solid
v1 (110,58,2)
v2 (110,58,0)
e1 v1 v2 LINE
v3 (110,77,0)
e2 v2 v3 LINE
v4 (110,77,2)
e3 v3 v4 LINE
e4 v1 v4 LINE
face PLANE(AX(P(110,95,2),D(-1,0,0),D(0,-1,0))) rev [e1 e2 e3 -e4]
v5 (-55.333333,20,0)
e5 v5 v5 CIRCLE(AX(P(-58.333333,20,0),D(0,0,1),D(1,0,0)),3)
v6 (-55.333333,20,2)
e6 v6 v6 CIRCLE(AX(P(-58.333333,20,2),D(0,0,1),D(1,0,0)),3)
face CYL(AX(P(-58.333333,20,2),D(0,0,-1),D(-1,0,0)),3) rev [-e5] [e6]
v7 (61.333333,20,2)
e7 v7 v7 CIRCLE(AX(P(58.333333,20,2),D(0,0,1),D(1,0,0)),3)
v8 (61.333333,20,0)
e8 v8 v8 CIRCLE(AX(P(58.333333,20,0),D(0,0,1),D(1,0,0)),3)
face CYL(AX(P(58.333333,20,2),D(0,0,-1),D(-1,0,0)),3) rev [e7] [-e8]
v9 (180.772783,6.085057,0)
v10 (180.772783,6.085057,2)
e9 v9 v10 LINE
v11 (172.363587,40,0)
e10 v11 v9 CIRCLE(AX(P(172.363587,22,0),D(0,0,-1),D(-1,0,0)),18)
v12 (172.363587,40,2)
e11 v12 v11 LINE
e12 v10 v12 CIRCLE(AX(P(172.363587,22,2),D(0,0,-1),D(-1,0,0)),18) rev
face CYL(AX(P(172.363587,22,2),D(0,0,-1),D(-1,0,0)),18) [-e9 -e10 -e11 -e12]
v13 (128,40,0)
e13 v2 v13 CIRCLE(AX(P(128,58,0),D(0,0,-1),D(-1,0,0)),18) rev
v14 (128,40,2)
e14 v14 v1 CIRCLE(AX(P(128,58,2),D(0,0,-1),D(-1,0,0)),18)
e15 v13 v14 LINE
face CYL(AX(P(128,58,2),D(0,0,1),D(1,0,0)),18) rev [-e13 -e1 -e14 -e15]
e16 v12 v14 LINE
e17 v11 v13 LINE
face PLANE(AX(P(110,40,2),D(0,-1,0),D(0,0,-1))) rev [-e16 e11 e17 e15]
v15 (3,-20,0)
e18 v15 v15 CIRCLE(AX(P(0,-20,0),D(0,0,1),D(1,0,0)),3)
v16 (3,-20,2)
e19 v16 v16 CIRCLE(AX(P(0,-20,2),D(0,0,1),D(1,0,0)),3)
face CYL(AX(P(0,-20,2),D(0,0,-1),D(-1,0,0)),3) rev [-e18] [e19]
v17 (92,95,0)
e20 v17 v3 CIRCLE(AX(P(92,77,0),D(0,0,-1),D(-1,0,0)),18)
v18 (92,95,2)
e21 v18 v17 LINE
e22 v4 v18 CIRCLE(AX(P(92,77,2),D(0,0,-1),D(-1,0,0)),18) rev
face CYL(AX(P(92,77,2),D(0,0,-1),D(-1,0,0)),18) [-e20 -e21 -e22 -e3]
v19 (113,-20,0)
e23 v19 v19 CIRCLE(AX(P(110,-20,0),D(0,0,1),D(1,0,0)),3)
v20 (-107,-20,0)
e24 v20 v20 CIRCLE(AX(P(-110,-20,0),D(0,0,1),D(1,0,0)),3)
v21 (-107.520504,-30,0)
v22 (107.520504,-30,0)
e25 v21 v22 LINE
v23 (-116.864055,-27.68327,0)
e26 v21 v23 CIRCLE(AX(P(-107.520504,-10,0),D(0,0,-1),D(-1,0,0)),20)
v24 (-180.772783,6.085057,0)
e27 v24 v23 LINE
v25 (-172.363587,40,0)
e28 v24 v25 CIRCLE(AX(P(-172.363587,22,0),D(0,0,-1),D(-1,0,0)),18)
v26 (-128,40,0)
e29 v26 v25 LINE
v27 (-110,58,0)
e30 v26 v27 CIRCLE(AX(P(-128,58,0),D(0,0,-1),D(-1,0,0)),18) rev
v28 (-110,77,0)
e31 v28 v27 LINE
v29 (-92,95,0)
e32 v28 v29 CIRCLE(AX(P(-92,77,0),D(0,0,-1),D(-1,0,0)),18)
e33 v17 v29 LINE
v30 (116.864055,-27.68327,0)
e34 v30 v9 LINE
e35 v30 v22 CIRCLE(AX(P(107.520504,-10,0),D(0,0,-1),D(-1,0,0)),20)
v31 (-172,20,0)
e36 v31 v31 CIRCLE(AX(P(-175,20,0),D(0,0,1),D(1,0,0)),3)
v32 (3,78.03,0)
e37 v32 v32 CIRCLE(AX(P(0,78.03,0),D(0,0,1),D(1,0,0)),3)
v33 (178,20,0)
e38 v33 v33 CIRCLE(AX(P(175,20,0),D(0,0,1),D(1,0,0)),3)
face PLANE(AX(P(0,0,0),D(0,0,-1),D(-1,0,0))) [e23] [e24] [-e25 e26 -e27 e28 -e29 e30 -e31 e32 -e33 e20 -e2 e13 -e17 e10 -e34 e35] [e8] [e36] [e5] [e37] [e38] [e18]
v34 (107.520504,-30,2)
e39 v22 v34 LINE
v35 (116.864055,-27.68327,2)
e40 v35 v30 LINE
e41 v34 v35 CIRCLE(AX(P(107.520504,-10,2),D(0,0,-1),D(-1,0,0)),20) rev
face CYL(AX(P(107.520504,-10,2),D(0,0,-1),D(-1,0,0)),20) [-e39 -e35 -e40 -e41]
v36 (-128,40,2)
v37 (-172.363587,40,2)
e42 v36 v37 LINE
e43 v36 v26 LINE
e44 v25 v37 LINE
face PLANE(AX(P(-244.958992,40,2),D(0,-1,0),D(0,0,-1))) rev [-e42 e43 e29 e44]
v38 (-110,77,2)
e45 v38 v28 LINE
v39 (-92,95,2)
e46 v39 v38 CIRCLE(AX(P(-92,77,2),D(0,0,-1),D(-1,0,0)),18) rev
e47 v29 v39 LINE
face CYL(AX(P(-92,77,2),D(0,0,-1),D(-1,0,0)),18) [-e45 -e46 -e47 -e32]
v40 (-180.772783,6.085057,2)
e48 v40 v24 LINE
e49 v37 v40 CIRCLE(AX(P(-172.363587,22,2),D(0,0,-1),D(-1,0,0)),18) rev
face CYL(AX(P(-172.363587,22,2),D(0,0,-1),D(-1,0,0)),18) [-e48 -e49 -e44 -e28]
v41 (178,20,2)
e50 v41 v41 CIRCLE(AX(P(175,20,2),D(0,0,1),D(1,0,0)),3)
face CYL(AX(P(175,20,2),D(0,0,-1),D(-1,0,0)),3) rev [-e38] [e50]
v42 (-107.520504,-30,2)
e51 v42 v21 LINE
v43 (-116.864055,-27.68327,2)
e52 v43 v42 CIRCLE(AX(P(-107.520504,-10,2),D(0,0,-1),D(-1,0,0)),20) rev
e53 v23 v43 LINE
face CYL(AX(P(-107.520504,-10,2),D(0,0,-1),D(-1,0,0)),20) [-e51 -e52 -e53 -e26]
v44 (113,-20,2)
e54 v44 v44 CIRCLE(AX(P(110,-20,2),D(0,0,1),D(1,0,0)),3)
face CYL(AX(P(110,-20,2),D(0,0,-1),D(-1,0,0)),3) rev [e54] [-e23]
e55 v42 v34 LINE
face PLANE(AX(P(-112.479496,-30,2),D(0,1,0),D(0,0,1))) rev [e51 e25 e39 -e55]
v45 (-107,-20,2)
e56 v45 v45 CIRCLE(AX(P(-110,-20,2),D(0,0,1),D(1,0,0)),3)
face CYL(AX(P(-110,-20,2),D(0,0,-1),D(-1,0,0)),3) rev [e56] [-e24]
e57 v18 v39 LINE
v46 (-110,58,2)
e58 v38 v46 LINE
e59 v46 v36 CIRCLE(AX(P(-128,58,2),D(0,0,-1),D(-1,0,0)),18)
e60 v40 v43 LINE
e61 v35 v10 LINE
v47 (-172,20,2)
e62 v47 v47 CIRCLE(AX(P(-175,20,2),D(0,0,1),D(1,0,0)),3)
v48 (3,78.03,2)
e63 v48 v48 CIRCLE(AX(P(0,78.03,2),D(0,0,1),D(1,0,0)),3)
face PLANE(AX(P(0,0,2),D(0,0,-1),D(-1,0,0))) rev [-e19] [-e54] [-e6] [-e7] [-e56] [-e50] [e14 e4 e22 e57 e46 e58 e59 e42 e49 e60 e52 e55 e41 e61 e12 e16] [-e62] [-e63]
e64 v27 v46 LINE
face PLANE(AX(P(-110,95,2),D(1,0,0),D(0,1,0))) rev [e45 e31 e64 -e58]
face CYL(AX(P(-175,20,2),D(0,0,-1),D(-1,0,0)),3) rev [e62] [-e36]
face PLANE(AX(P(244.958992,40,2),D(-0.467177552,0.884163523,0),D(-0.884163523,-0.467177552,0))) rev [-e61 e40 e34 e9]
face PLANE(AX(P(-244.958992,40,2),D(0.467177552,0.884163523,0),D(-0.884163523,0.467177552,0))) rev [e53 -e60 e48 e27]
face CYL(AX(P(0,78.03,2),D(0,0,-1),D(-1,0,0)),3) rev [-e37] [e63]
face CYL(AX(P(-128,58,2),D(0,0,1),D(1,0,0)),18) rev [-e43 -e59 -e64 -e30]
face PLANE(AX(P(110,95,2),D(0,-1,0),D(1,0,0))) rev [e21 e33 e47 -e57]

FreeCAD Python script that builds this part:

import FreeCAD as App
import Part
import Sketcher
Q = App.Units.Quantity


def edges_at(feature, points):
    """Names of the edges that pass closest to the given points."""
    edges = feature.Shape.Edges
    near = lambda p: min(range(len(edges)), key=lambda i: edges[i].distToShape(Part.Vertex(*p))[0])
    return sorted({f"Edge{near(p) + 1}" for p in points})


def add_polygon(sketch, points):
    """Adds a closed chain of lines whose ends are joined by coincident constraints."""
    first, n = sketch.GeometryCount, len(points)
    for a, b in zip(points, points[1:] + points[:1]):
        sketch.addGeometry(Part.LineSegment(App.Vector(*a, 0), App.Vector(*b, 0)), False)
    for i in range(n):
        sketch.addConstraint(Sketcher.Constraint("Coincident", first + i, 2, first + (i + 1) % n, 1))

doc = App.newDocument("Part")
body = doc.addObject("PartDesign::Body", "Body")

sketch1 = body.newObject("Sketcher::SketchObject", "Sketch")
sketch1.AttachmentSupport = (doc.getObject("XY_Plane"), [""])
sketch1.MapMode = "FlatFace"
add_polygon(sketch1, [(-110, 40), (-245, 40), (-112.5, -30), (112.5, -30), (245, 40), (110, 40), (110, 95), (-110, 95)])
sketch1.addGeometry(Part.Circle(App.Vector(110, -20, 0), App.Vector(0, 0, 1), 3), False)
sketch1.addGeometry(Part.Circle(App.Vector(175, 20, 0), App.Vector(0, 0, 1), 3), False)
sketch1.addGeometry(Part.Circle(App.Vector(58.3, 20, 0), App.Vector(0, 0, 1), 3), False)
sketch1.addGeometry(Part.Circle(App.Vector(0, -20, 0), App.Vector(0, 0, 1), 3), False)
sketch1.addGeometry(Part.Circle(App.Vector(-110, -20, 0), App.Vector(0, 0, 1), 3), False)
sketch1.addGeometry(Part.Circle(App.Vector(-58.3, 20, 0), App.Vector(0, 0, 1), 3), False)
sketch1.addGeometry(Part.Circle(App.Vector(-175, 20, 0), App.Vector(0, 0, 1), 3), False)
sketch1.addGeometry(Part.Circle(App.Vector(0, 78, 0), App.Vector(0, 0, 1), 3), False)
sketch1.addConstraint(Sketcher.Constraint("Horizontal", 0))
sketch1.addConstraint(Sketcher.Constraint("Horizontal", 2))
sketch1.addConstraint(Sketcher.Constraint("Horizontal", 4))
sketch1.addConstraint(Sketcher.Constraint("Vertical", 5))
sketch1.addConstraint(Sketcher.Constraint("Horizontal", 6))
sketch1.addConstraint(Sketcher.Constraint("Vertical", 7))
sketch1.addConstraint(Sketcher.Constraint("Equal", 8, 9))
sketch1.addConstraint(Sketcher.Constraint("Equal", 9, 10))
sketch1.addConstraint(Sketcher.Constraint("Equal", 10, 11))
sketch1.addConstraint(Sketcher.Constraint("Equal", 11, 12))
sketch1.addConstraint(Sketcher.Constraint("Equal", 12, 13))
sketch1.addConstraint(Sketcher.Constraint("Equal", 13, 14))
sketch1.addConstraint(Sketcher.Constraint("Equal", 14, 15))
sketch1.addConstraint(Sketcher.Constraint("Symmetric", 8, 3, 12, 3, -2))
sketch1.addConstraint(Sketcher.Constraint("Symmetric", 10, 3, 13, 3, -2))
sketch1.addConstraint(Sketcher.Constraint("Symmetric", 9, 3, 14, 3, -2))
sketch1.addConstraint(Sketcher.Constraint("Symmetric", 0, 2, 3, 2, -2))
sketch1.addConstraint(Sketcher.Constraint("PointOnObject", 11, 3, -2))
sketch1.addConstraint(Sketcher.Constraint("PointOnObject", 15, 3, -2))
sketch1.addConstraint(Sketcher.Constraint("Horizontal", 9, 3, 10, 3))
sketch1.addConstraint(Sketcher.Constraint("Horizontal", 8, 3, 11, 3))
sketch1.addConstraint(Sketcher.Constraint("Vertical", 8, 3, 4, 2))
sketch1.addConstraint(Sketcher.Constraint("Vertical", 12, 3, 6, 2))
sketch1.addConstraint(Sketcher.Constraint("Equal", 1, 3))
sketch1.addConstraint(Sketcher.Constraint("Diameter", 8, Q("6 mm")))
sketch1.addConstraint(Sketcher.Constraint("DistanceX", 6, 2, 6, 1, Q("220 mm")))
sketch1.addConstraint(Sketcher.Constraint("DistanceY", 5, 1, 5, 2, Q("55 mm")))
sketch1.addConstraint(Sketcher.Constraint("DistanceY", 8, 3, -1, 1, Q("20 mm")))
sketch1.addConstraint(Sketcher.Constraint("DistanceX", -1, 1, 9, 3, Q("175 mm")))
sketch1.addConstraint(Sketcher.Constraint("DistanceY", -1, 1, 9, 3, Q("20 mm")))
sketch1.addConstraint(Sketcher.Constraint("DistanceY", -1, 1, 0, 2, Q("40 mm")))
sketch1.addConstraint(Sketcher.Constraint("DistanceY", 1, 2, -1, 1, Q("30 mm")))
sketch1.addConstraint(Sketcher.Constraint("DistanceY", -1, 1, 15, 3, Q("78.03 mm")))
sketch1.addConstraint(Sketcher.Constraint("DistanceX", 0, 2, 0, 1, Q("134.958992 mm")))
sketch1.addConstraint(Sketcher.Constraint("DistanceX", 2, 1, 2, 2, Q("224.958992 mm")))
sketch1.addConstraint(Sketcher.Constraint("DistanceX", 0, 2, 13, 3, Q("186.625658 mm")))
pad1 = body.newObject("PartDesign::Pad", "Pad")
pad1.Profile = sketch1
pad1.Length = 2
doc.recompute()

fillet = body.newObject("PartDesign::Fillet", "Fillet")
fillet.Base = (pad1, edges_at(pad1, [
    (-244.959, 40, 1),
    (-110, 40, 1),
    (-110, 95, 1),
    (110, 95, 1),
    (110, 40, 1),
    (244.959, 40, 1),
]))
fillet.Radius = 18
doc.recompute()

fillet2 = body.newObject("PartDesign::Fillet", "Fillet001")
fillet2.Base = (fillet, edges_at(fillet, [(112.479, -30, 1), (-112.479, -30, 1)]))
fillet2.Radius = 20

doc.recompute()
